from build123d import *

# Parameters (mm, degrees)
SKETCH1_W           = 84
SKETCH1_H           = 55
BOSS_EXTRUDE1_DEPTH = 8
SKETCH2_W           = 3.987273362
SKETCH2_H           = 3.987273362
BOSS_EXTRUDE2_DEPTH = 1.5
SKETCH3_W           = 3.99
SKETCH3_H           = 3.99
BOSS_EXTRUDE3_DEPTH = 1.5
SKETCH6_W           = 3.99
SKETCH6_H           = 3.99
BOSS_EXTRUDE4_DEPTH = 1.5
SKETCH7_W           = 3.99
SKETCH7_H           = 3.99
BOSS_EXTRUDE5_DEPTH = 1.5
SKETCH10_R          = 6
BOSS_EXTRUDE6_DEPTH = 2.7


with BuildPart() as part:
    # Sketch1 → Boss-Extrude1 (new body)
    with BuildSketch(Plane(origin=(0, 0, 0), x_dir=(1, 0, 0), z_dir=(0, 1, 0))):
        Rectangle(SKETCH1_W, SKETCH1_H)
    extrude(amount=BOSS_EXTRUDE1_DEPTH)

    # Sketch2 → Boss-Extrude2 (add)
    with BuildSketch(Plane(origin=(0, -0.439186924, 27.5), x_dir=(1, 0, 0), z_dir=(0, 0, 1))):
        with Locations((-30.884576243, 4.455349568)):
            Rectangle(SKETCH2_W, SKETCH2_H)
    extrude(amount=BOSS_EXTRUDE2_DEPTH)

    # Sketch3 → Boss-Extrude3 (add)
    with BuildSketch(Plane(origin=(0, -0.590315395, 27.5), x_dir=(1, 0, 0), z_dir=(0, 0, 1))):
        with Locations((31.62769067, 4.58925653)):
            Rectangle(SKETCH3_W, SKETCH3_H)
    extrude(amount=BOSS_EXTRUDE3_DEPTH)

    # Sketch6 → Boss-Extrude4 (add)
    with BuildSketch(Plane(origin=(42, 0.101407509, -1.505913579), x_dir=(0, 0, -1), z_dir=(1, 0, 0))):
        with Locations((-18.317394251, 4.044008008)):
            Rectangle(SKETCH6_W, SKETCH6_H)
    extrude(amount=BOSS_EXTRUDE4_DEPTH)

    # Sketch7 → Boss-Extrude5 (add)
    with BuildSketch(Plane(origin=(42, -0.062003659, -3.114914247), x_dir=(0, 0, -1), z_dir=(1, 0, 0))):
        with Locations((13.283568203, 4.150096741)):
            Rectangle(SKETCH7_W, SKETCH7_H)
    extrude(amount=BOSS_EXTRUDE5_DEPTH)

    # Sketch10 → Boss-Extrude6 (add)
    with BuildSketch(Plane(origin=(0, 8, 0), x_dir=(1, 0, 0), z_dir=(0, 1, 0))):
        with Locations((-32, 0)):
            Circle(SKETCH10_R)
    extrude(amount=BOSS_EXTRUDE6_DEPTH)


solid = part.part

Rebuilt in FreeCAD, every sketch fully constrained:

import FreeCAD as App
import Part
import Sketcher

V = App.Vector

doc = App.newDocument("Part")
body = doc.addObject("PartDesign::Body", "Body")

sketch1 = doc.addObject("Sketcher::SketchObject", "Sketch")
body.addObject(sketch1)
sketch1.AttachmentSupport = (doc.XZ_Plane, [""])
sketch1.MapMode = "FlatFace"
sketch1.addGeometry(Part.LineSegment(V(-42, -27.5, 0), V(-42, 27.5, 0)), False)
sketch1.addGeometry(Part.LineSegment(V(-42, 27.5, 0), V(42, 27.5, 0)), False)
sketch1.addGeometry(Part.LineSegment(V(42, 27.5, 0), V(42, -27.5, 0)), False)
sketch1.addGeometry(Part.LineSegment(V(42, -27.5, 0), V(-42, -27.5, 0)), False)
sketch1.addConstraint(Sketcher.Constraint("Coincident", 0, 2, 1, 1))
sketch1.addConstraint(Sketcher.Constraint("Coincident", 1, 2, 2, 1))
sketch1.addConstraint(Sketcher.Constraint("Coincident", 2, 2, 3, 1))
sketch1.addConstraint(Sketcher.Constraint("Coincident", 3, 2, 0, 1))
sketch1.addConstraint(Sketcher.Constraint("Vertical", 0))
sketch1.addConstraint(Sketcher.Constraint("Horizontal", 1))
sketch1.addConstraint(Sketcher.Constraint("Vertical", 2))
sketch1.addConstraint(Sketcher.Constraint("Horizontal", 3))
sketch1.addConstraint(Sketcher.Constraint("Symmetric", 0, 2, 2, 2, -1, 1))
sketch1.addConstraint(Sketcher.Constraint("DistanceX", 1, 1, 1, 2, 84.0))
sketch1.addConstraint(Sketcher.Constraint("DistanceY", 0, 1, 0, 2, 55.0))
pad1 = doc.addObject("PartDesign::Pad", "Pad")
body.addObject(pad1)
pad1.Profile = sketch1
pad1.Length = 8
pad1.Reversed = True

sketch2 = doc.addObject("Sketcher::SketchObject", "Sketch001")
body.addObject(sketch2)
sketch2.AttachmentSupport = (doc.XY_Plane, [""])
sketch2.MapMode = "FlatFace"
sketch2.AttachmentOffset = App.Placement(V(0, 0, 27.5), App.Rotation())
sketch2.addGeometry(Part.LineSegment(V(-32.878213, 6.009799, 0), V(-32.878213, 2.022526, 0)), False)
sketch2.addGeometry(Part.LineSegment(V(-32.878213, 2.022526, 0), V(-28.89094, 2.022526, 0)), False)
sketch2.addGeometry(Part.LineSegment(V(-28.89094, 2.022526, 0), V(-28.89094, 6.009799, 0)), False)
sketch2.addGeometry(Part.LineSegment(V(-28.89094, 6.009799, 0), V(-32.878213, 6.009799, 0)), False)
sketch2.addConstraint(Sketcher.Constraint("Coincident", 0, 2, 1, 1))
sketch2.addConstraint(Sketcher.Constraint("Coincident", 1, 2, 2, 1))
sketch2.addConstraint(Sketcher.Constraint("Coincident", 2, 2, 3, 1))
sketch2.addConstraint(Sketcher.Constraint("Coincident", 3, 2, 0, 1))
sketch2.addConstraint(Sketcher.Constraint("Vertical", 0))
sketch2.addConstraint(Sketcher.Constraint("Horizontal", 1))
sketch2.addConstraint(Sketcher.Constraint("Vertical", 2))
sketch2.addConstraint(Sketcher.Constraint("Horizontal", 3))
sketch2.addConstraint(Sketcher.Constraint("Equal", 3, 0))
sketch2.addConstraint(Sketcher.Constraint("DistanceY", -1, 1, 2, 2, 6.009799))
sketch2.addConstraint(Sketcher.Constraint("DistanceX", 1, 1, 1, 2, 3.987273))
sketch2.addConstraint(Sketcher.Constraint("DistanceX", 1, 2, -1, 1, 28.89094))
pad2 = doc.addObject("PartDesign::Pad", "Pad001")
body.addObject(pad2)
pad2.Profile = sketch2
pad2.Length = 1.5

sketch3 = doc.addObject("Sketcher::SketchObject", "Sketch002")
body.addObject(sketch3)
sketch3.AttachmentSupport = (doc.XY_Plane, [""])
sketch3.MapMode = "FlatFace"
sketch3.AttachmentOffset = App.Placement(V(0, 0, 27.5), App.Rotation())
sketch3.addGeometry(Part.LineSegment(V(29.632691, 5.993941, 0), V(29.632691, 2.003941, 0)), False)
sketch3.addGeometry(Part.LineSegment(V(29.632691, 2.003941, 0), V(33.622691, 2.003941, 0)), False)
sketch3.addGeometry(Part.LineSegment(V(33.622691, 2.003941, 0), V(33.622691, 5.993941, 0)), False)
sketch3.addGeometry(Part.LineSegment(V(33.622691, 5.993941, 0), V(29.632691, 5.993941, 0)), False)
sketch3.addConstraint(Sketcher.Constraint("Coincident", 0, 2, 1, 1))
sketch3.addConstraint(Sketcher.Constraint("Coincident", 1, 2, 2, 1))
sketch3.addConstraint(Sketcher.Constraint("Coincident", 2, 2, 3, 1))
sketch3.addConstraint(Sketcher.Constraint("Coincident", 3, 2, 0, 1))
sketch3.addConstraint(Sketcher.Constraint("Vertical", 0))
sketch3.addConstraint(Sketcher.Constraint("Horizontal", 1))
sketch3.addConstraint(Sketcher.Constraint("Vertical", 2))
sketch3.addConstraint(Sketcher.Constraint("Horizontal", 3))
sketch3.addConstraint(Sketcher.Constraint("Equal", 3, 0))
sketch3.addConstraint(Sketcher.Constraint("DistanceX", 1, 1, 1, 2, 3.99))
sketch3.addConstraint(Sketcher.Constraint("DistanceX", -1, 1, 0, 2, 29.632691))
sketch3.addConstraint(Sketcher.Constraint("DistanceY", -1, 1, 0, 2, 2.003941))
pad3 = doc.addObject("PartDesign::Pad", "Pad002")
body.addObject(pad3)
pad3.Profile = sketch3
pad3.Length = 1.5

sketch4 = doc.addObject("Sketcher::SketchObject", "Sketch003")
body.addObject(sketch4)
sketch4.AttachmentSupport = (doc.YZ_Plane, [""])
sketch4.MapMode = "FlatFace"
sketch4.AttachmentOffset = App.Placement(V(0, 0, 42), App.Rotation())
sketch4.addGeometry(Part.LineSegment(V(6.140416, 18.806481, 0), V(2.150416, 18.806481, 0)), False)
sketch4.addGeometry(Part.LineSegment(V(2.150416, 18.806481, 0), V(2.150416, 14.816481, 0)), False)
sketch4.addGeometry(Part.LineSegment(V(2.150416, 14.816481, 0), V(6.140416, 14.816481, 0)), False)
sketch4.addGeometry(Part.LineSegment(V(6.140416, 14.816481, 0), V(6.140416, 18.806481, 0)), False)
sketch4.addConstraint(Sketcher.Constraint("Coincident", 0, 2, 1, 1))
sketch4.addConstraint(Sketcher.Constraint("Coincident", 1, 2, 2, 1))
sketch4.addConstraint(Sketcher.Constraint("Coincident", 2, 2, 3, 1))
sketch4.addConstraint(Sketcher.Constraint("Coincident", 3, 2, 0, 1))
sketch4.addConstraint(Sketcher.Constraint("Horizontal", 0))
sketch4.addConstraint(Sketcher.Constraint("Vertical", 1))
sketch4.addConstraint(Sketcher.Constraint("Horizontal", 2))
sketch4.addConstraint(Sketcher.Constraint("Vertical", 3))
sketch4.addConstraint(Sketcher.Constraint("Equal", 2, 1))
sketch4.addConstraint(Sketcher.Constraint("DistanceX", 0, 2, 0, 1, 3.99))
sketch4.addConstraint(Sketcher.Constraint("DistanceY", -1, 1, 0, 2, 18.806481))
sketch4.addConstraint(Sketcher.Constraint("DistanceX", -1, 1, 0, 2, 2.150416))
pad4 = doc.addObject("PartDesign::Pad", "Pad003")
body.addObject(pad4)
pad4.Profile = sketch4
pad4.Length = 1.5

sketch5 = doc.addObject("Sketcher::SketchObject", "Sketch004")
body.addObject(sketch5)
sketch5.AttachmentSupport = (doc.YZ_Plane, [""])
sketch5.MapMode = "FlatFace"
sketch5.AttachmentOffset = App.Placement(V(0, 0, 42), App.Rotation())
sketch5.addGeometry(Part.LineSegment(V(6.083093, -14.403482, 0), V(2.093093, -14.403482, 0)), False)
sketch5.addGeometry(Part.LineSegment(V(2.093093, -14.403482, 0), V(2.093093, -18.393482, 0)), False)
sketch5.addGeometry(Part.LineSegment(V(2.093093, -18.393482, 0), V(6.083093, -18.393482, 0)), False)
sketch5.addGeometry(Part.LineSegment(V(6.083093, -18.393482, 0), V(6.083093, -14.403482, 0)), False)
sketch5.addConstraint(Sketcher.Constraint("Coincident", 0, 2, 1, 1))
sketch5.addConstraint(Sketcher.Constraint("Coincident", 1, 2, 2, 1))
sketch5.addConstraint(Sketcher.Constraint("Coincident", 2, 2, 3, 1))
sketch5.addConstraint(Sketcher.Constraint("Coincident", 3, 2, 0, 1))
sketch5.addConstraint(Sketcher.Constraint("Horizontal", 0))
sketch5.addConstraint(Sketcher.Constraint("Vertical", 1))
sketch5.addConstraint(Sketcher.Constraint("Horizontal", 2))
sketch5.addConstraint(Sketcher.Constraint("Vertical", 3))
sketch5.addConstraint(Sketcher.Constraint("Equal", 2, 1))
sketch5.addConstraint(Sketcher.Constraint("DistanceX", 0, 2, 0, 1, 3.99))
sketch5.addConstraint(Sketcher.Constraint("DistanceX", -1, 1, 0, 2, 2.093093))
sketch5.addConstraint(Sketcher.Constraint("DistanceY", 0, 2, -1, 1, 14.403482))
pad5 = doc.addObject("PartDesign::Pad", "Pad004")
body.addObject(pad5)
pad5.Profile = sketch5
pad5.Length = 1.5

sketch6 = doc.addObject("Sketcher::SketchObject", "Sketch005")
body.addObject(sketch6)
sketch6.AttachmentSupport = (doc.XZ_Plane, [""])
sketch6.MapMode = "FlatFace"
sketch6.AttachmentOffset = App.Placement(V(0, 0, -8), App.Rotation())
sketch6.addGeometry(Part.Circle(V(-32, 0, 0), V(0, 0, 1), 6), False)
sketch6.addConstraint(Sketcher.Constraint("PointOnObject", 0, 3, -1))
sketch6.addConstraint(Sketcher.Constraint("Diameter", 0, 12.0))
sketch6.addConstraint(Sketcher.Constraint("DistanceX", 0, 3, -1, 1, 32.0))
pad6 = doc.addObject("PartDesign::Pad", "Pad005")
body.addObject(pad6)
pad6.Profile = sketch6
pad6.Length = 2.7
pad6.Reversed = True

doc.recompute()
